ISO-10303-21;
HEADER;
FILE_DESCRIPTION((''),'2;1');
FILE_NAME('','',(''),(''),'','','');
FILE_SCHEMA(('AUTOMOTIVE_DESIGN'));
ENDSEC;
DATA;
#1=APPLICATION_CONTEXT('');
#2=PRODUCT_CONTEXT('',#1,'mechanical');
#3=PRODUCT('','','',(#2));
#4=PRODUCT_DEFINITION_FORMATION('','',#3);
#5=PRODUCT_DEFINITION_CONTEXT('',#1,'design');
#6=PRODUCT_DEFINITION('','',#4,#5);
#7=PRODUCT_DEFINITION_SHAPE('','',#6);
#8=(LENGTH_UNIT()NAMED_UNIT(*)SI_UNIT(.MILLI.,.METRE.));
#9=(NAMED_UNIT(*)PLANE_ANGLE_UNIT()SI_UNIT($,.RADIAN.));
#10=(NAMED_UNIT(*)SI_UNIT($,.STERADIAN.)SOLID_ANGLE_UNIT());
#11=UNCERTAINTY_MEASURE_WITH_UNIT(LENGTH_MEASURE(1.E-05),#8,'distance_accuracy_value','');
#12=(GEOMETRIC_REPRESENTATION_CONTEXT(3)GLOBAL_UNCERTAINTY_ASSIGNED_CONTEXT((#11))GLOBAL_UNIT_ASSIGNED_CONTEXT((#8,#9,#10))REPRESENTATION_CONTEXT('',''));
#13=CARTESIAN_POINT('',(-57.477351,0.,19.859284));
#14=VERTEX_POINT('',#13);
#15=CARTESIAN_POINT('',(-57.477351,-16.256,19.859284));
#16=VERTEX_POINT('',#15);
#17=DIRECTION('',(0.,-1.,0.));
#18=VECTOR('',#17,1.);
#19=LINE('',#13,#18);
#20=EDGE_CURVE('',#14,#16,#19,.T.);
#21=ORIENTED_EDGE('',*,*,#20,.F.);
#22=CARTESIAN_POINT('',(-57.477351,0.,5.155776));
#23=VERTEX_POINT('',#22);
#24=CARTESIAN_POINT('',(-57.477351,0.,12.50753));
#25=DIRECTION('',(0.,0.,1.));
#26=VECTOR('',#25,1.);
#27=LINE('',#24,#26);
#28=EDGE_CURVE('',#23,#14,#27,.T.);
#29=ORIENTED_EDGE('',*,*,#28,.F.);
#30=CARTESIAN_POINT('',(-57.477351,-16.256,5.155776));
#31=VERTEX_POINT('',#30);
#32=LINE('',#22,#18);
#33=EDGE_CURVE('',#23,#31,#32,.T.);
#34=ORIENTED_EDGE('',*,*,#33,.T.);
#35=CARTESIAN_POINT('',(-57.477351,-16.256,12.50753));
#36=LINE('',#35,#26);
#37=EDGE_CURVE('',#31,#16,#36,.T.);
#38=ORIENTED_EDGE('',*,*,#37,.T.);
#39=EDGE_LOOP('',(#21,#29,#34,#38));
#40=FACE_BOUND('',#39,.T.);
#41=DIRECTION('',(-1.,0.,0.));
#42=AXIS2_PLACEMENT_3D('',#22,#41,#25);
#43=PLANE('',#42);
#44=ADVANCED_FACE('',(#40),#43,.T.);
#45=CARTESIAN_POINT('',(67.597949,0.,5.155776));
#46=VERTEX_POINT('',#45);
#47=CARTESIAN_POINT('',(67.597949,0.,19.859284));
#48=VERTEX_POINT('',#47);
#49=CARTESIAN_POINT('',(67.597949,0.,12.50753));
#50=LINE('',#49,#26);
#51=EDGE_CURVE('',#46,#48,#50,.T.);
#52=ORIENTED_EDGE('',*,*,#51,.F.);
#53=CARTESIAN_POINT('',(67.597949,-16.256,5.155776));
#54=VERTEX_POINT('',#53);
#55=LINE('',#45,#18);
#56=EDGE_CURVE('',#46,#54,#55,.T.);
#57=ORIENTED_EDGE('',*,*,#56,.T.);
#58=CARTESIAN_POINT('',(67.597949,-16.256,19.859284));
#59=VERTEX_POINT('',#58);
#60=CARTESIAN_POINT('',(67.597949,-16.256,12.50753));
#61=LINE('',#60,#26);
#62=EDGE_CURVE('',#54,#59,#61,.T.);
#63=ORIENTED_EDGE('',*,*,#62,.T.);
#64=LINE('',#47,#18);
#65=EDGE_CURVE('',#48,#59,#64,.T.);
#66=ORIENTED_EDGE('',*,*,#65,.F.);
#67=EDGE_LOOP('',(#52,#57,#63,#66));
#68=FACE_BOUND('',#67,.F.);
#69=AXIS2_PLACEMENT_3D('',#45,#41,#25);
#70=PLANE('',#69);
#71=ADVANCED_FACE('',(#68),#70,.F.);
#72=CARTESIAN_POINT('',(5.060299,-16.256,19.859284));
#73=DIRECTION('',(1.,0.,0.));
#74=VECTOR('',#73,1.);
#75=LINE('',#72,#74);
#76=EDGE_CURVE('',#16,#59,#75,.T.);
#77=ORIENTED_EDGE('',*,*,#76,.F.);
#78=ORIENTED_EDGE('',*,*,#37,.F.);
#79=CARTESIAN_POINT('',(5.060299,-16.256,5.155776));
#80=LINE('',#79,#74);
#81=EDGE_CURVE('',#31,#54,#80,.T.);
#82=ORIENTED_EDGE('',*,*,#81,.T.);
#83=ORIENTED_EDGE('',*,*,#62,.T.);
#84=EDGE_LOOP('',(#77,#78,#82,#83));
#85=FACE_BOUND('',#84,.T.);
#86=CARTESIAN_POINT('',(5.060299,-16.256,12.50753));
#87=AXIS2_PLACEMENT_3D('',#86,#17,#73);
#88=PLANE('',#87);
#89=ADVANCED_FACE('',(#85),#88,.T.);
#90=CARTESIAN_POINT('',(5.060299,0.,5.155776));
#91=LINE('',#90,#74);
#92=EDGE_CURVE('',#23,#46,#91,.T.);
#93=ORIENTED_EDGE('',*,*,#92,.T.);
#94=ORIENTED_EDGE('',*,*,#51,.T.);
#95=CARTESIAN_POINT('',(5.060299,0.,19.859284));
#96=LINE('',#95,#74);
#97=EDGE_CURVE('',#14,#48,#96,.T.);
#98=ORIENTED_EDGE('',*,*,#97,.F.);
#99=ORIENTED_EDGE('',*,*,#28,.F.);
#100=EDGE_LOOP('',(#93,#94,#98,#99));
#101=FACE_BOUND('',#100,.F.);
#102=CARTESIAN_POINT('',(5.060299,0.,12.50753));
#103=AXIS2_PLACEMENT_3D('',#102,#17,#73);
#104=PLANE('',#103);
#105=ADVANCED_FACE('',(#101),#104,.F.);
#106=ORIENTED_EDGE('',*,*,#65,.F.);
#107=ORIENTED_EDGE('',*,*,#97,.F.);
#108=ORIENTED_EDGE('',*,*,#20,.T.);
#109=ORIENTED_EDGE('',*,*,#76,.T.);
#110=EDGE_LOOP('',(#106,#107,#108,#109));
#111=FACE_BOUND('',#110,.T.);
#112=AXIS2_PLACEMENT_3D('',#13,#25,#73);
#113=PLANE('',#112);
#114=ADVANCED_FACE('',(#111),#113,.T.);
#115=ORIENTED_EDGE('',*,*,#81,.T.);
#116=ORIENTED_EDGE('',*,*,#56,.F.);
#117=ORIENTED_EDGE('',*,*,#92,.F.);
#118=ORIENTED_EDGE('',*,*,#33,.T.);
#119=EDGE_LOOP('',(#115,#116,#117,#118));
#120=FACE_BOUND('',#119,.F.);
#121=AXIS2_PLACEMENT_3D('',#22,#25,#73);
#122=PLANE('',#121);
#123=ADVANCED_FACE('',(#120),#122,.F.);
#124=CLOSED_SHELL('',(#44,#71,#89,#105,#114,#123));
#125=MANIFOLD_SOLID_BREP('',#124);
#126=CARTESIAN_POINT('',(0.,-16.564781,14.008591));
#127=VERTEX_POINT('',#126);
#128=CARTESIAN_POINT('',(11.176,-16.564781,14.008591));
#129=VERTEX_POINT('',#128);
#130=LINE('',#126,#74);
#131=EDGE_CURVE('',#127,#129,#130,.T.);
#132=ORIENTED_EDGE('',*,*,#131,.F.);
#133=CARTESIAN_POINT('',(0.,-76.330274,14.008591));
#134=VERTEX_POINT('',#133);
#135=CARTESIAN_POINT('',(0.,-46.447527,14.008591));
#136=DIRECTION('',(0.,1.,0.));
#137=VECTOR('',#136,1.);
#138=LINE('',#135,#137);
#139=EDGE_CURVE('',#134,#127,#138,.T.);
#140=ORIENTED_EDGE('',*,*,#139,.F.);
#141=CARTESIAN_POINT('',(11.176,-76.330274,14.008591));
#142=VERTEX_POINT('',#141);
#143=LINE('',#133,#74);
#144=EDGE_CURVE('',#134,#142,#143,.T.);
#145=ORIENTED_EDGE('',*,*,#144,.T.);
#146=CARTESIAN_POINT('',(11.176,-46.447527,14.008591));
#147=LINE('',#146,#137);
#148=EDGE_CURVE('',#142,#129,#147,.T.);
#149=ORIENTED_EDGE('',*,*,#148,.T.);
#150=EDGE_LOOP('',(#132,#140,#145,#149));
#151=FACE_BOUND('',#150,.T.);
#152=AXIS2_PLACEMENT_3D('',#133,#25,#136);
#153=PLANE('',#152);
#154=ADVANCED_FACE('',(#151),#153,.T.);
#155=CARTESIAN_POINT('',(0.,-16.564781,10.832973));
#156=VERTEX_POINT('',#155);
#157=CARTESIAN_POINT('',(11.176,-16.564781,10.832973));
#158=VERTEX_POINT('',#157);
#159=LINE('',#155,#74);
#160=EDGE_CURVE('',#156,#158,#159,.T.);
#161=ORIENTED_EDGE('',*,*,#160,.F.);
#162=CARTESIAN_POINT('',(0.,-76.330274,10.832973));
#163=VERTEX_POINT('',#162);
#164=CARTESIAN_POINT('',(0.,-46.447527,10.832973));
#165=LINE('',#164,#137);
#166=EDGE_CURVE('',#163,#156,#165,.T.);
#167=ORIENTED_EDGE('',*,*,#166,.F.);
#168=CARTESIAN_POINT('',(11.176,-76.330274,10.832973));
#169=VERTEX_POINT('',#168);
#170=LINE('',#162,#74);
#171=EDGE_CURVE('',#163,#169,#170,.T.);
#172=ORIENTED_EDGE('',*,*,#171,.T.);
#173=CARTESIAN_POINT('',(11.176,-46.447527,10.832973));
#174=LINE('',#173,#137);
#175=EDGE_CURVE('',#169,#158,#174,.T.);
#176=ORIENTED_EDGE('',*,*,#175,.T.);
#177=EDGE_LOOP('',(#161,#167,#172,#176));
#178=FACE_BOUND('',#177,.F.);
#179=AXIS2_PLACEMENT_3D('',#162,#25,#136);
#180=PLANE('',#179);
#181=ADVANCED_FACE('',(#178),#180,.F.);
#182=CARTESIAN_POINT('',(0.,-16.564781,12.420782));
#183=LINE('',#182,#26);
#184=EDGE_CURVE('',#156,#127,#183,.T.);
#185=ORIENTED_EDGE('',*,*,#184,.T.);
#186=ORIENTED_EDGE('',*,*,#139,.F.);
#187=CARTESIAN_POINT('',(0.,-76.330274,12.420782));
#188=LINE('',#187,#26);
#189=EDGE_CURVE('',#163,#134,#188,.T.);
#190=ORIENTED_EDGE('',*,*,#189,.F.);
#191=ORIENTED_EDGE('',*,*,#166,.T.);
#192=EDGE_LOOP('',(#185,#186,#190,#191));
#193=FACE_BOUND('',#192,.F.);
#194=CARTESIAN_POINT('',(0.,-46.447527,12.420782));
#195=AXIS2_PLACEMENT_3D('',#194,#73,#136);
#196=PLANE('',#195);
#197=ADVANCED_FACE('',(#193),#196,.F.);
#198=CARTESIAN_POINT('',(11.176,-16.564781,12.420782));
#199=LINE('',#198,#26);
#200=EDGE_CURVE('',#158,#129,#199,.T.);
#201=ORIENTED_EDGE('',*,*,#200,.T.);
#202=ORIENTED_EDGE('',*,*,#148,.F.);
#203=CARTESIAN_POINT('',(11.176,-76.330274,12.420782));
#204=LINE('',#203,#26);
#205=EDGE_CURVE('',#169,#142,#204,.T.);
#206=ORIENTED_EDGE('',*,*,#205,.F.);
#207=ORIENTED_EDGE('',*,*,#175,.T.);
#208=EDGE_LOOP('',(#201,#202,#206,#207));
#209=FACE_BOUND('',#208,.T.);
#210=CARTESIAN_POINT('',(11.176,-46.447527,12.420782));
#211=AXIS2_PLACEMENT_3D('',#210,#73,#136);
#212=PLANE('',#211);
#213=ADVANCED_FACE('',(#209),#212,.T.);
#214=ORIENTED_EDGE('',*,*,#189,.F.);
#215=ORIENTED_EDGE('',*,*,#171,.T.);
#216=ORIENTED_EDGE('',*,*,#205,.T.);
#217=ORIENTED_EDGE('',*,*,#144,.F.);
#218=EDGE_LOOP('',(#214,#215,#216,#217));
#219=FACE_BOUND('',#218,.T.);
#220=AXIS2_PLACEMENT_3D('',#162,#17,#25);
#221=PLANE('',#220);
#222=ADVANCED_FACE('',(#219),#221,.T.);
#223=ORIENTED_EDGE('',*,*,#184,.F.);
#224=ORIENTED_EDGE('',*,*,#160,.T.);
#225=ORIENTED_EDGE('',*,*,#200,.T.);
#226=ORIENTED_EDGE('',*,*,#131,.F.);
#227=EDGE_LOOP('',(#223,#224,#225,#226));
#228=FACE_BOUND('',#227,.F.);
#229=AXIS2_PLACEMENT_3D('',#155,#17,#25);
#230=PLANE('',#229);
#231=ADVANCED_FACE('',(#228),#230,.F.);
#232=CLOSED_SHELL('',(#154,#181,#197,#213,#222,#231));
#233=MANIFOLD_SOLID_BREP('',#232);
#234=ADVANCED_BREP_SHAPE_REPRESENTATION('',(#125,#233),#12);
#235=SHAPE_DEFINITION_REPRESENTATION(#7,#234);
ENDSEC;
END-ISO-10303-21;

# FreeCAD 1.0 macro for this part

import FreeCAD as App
import Part
import Sketcher
Q = App.Units.Quantity


def add_polygon(sketch, points):
    """Adds a closed chain of lines whose ends are joined by coincident constraints."""
    first, n = sketch.GeometryCount, len(points)
    for a, b in zip(points, points[1:] + points[:1]):
        sketch.addGeometry(Part.LineSegment(App.Vector(*a, 0), App.Vector(*b, 0)), False)
    for i in range(n):
        sketch.addConstraint(Sketcher.Constraint("Coincident", first + i, 2, first + (i + 1) % n, 1))

doc = App.newDocument("Part")
body = doc.addObject("PartDesign::Body", "Body")

sketch1 = doc.addObject("Sketcher::SketchObject", "Sketch")
body.addObject(sketch1)
sketch1.AttachmentSupport = (doc.XZ_Plane, [""])
sketch1.MapMode = "FlatFace"
add_polygon(sketch1, [(-57, 20), (-57, 5), (68, 5), (68, 20)])
sketch1.addConstraint([
    Sketcher.Constraint("Vertical", 0),
    Sketcher.Constraint("Horizontal", 1),
    Sketcher.Constraint("Vertical", 2),
    Sketcher.Constraint("Horizontal", 3),
    Sketcher.Constraint("DistanceX", 1, 1, 1, 2, 125.075299),
    Sketcher.Constraint("DistanceY", 0, 2, 0, 1, 14.703508),
    Sketcher.Constraint("DistanceX", 0, 2, -1, 1, 57.477351),
    Sketcher.Constraint("DistanceY", -1, 1, 0, 2, 5.155776),
])
pad1 = doc.addObject("PartDesign::Pad", "Pad")
body.addObject(pad1)
pad1.Profile = sketch1
pad1.Length = Q("0.64 in")
body2 = doc.addObject("PartDesign::Body", "Body001")

sketch2 = doc.addObject("Sketcher::SketchObject", "Sketch001")
body2.addObject(sketch2)
sketch2.AttachmentSupport = (doc.getObject("YZ_Plane001"), [""])
sketch2.MapMode = "FlatFace"
add_polygon(sketch2, [(-76.3, 14), (-76.3, 10.8), (-16.6, 10.8), (-16.6, 14)])
sketch2.addConstraint([
    Sketcher.Constraint("Vertical", 0),
    Sketcher.Constraint("Horizontal", 1),
    Sketcher.Constraint("Vertical", 2),
    Sketcher.Constraint("Horizontal", 3),
    Sketcher.Constraint("DistanceX", 1, 1, 1, 2, 59.765493),
    Sketcher.Constraint("DistanceY", 0, 2, 0, 1, 3.175618),
    Sketcher.Constraint("DistanceX", 1, 2, -1, 1, 16.564781),
    Sketcher.Constraint("DistanceY", -1, 1, 2, 2, 14.008591),
])
pad2 = doc.addObject("PartDesign::Pad", "Pad001")
body2.addObject(pad2)
pad2.Profile = sketch2
pad2.Length = Q("0.44 in")

doc.recompute()
